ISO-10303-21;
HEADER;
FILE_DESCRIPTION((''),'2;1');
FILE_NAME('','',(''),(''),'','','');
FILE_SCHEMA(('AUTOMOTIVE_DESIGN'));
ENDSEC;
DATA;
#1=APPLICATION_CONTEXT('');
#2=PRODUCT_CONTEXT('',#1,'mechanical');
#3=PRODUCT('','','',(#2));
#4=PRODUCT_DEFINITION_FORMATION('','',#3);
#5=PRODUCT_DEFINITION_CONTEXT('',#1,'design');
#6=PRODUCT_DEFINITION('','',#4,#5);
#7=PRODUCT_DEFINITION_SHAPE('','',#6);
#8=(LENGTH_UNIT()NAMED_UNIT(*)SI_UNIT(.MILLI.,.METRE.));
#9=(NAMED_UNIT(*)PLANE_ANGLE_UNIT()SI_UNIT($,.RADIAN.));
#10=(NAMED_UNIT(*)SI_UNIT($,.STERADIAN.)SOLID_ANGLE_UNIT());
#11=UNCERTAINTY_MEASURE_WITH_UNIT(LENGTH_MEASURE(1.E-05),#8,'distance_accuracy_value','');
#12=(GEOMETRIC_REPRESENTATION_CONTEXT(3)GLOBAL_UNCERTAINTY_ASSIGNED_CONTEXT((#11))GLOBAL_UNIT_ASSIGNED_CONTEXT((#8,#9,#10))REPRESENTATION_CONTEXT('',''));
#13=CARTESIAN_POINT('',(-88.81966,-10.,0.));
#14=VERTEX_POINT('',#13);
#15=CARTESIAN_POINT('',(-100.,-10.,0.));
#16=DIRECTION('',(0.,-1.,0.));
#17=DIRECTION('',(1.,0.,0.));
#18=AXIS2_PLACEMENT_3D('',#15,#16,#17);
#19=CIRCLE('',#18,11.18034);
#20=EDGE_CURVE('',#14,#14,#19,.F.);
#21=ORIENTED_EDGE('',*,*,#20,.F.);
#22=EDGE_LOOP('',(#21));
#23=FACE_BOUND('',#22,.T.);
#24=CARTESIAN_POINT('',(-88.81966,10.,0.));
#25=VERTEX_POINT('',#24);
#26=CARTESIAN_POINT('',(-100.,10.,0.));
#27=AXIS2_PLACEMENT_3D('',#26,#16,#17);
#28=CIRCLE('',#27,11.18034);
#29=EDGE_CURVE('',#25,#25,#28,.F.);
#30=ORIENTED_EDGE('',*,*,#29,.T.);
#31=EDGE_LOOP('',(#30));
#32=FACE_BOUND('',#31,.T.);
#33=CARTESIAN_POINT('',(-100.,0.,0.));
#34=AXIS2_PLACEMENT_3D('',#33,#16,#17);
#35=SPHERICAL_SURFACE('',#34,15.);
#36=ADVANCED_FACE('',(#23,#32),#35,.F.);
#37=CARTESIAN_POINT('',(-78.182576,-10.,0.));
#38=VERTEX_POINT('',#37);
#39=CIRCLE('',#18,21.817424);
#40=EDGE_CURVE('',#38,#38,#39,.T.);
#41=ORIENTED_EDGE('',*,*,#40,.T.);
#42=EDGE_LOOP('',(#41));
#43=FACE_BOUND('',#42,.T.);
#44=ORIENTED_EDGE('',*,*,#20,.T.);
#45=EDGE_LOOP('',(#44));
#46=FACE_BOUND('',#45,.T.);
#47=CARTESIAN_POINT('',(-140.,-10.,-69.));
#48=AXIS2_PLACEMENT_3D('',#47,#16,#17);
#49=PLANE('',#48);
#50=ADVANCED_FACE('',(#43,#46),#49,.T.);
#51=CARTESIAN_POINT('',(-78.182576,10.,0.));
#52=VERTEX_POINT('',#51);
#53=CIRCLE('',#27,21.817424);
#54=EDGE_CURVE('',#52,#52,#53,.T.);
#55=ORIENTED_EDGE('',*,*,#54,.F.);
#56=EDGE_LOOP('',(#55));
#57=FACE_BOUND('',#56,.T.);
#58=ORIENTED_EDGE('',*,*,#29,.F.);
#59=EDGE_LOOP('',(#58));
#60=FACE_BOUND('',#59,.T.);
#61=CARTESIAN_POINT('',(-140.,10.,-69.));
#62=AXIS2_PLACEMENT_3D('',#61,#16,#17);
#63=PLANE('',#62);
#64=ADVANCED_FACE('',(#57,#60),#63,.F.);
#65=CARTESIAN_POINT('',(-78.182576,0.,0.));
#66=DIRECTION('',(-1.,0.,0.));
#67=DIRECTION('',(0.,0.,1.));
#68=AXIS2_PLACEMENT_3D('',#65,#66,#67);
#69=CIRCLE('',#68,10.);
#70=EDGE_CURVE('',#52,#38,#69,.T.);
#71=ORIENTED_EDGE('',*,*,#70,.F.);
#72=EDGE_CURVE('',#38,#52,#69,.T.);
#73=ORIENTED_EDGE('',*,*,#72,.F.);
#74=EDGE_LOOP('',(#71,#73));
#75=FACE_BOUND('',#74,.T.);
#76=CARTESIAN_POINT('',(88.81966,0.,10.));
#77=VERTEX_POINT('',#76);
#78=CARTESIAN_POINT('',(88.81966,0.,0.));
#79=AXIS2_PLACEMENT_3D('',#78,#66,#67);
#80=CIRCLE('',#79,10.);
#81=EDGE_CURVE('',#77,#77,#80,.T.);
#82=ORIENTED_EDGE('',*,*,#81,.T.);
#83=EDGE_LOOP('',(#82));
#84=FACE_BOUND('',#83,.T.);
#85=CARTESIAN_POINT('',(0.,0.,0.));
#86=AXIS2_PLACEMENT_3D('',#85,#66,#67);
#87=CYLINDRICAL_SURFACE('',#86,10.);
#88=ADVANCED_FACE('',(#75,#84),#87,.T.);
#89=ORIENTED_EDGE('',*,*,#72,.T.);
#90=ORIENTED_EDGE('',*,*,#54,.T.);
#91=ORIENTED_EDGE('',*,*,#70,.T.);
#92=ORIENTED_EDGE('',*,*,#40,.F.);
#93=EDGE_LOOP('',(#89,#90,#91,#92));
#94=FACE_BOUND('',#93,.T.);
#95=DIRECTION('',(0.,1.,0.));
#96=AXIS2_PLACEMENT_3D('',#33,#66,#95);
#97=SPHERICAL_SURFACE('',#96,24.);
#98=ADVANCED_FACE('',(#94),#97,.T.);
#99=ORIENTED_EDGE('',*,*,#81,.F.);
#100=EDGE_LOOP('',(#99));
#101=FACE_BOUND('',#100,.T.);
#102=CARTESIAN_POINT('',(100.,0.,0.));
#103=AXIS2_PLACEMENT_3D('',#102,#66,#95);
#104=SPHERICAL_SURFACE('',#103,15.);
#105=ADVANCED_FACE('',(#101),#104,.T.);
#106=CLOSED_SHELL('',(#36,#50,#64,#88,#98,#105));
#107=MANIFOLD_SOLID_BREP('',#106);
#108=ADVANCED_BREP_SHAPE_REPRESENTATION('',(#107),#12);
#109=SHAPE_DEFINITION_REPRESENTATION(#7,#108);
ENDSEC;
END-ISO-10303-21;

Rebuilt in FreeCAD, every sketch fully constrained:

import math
import FreeCAD as App
import Part
import Sketcher
from FreeCAD import Vector
Q = App.Units.Quantity

doc = App.newDocument("Part")
params = doc.addObject("Spreadsheet::Sheet", "Params")
for row, (alias, value) in enumerate([
    ("sketch1_radius", "15 mm"),
    ("sketch1_radius2", "24 mm"),
    ("sketch1_width", "200 mm"),
    ("revolution_angle", "360 deg"),
    ("sketch2_width", "80 mm"),
    ("sketch2_height", "20 mm"),
    ("pocket1_length", "138 mm"),
], start=1):
    params.set(f"A{row}", alias)
    params.set(f"B{row}", "=" + value)
    params.setAlias(f"B{row}", alias)

body = doc.addObject("PartDesign::Body", "Body")

sketch1 = body.newObject("Sketcher::SketchObject", "Sketch")
sketch1.AttachmentSupport = (doc.getObject("XY_Plane"), [""])
sketch1.MapMode = "FlatFace"
sketch1.addGeometry(Part.ArcOfCircle(Part.Circle(Vector(100, 0, 0), Vector(0, 0, 1), 15), math.radians(0), math.radians(138.189685)), False)
sketch1.addGeometry(Part.LineSegment(Vector(88.81966, 10, 0), Vector(-78.182576, 10, 0)), False)
sketch1.addGeometry(Part.ArcOfCircle(Part.Circle(Vector(-100, 0, 0), Vector(0, 0, 1), 24), math.radians(24.624318), math.radians(180)), False)
sketch1.addGeometry(Part.LineSegment(Vector(-124, 0, 0), Vector(-115, 0, 0)), False)
sketch1.addGeometry(Part.ArcOfCircle(Part.Circle(Vector(-100, 0, 0), Vector(0, 0, 1), 15), math.radians(0), math.radians(180)), False)
sketch1.addGeometry(Part.LineSegment(Vector(-85, 0, 0), Vector(115, 0, 0)), False)
sketch1.addConstraint(Sketcher.Constraint("Coincident", 0, 2, 1, 1))
sketch1.addConstraint(Sketcher.Constraint("Coincident", 1, 2, 2, 1))
sketch1.addConstraint(Sketcher.Constraint("Coincident", 2, 2, 3, 1))
sketch1.addConstraint(Sketcher.Constraint("Coincident", 3, 2, 4, 2))
sketch1.addConstraint(Sketcher.Constraint("Coincident", 4, 1, 5, 1))
sketch1.addConstraint(Sketcher.Constraint("Coincident", 5, 2, 0, 1))
sketch1.addConstraint(Sketcher.Constraint("Horizontal", 1))
sketch1.addConstraint(Sketcher.Constraint("Horizontal", 3))
sketch1.addConstraint(Sketcher.Constraint("Horizontal", 5))
sketch1.addConstraint(Sketcher.Constraint("Coincident", 4, 3, 2, 3))
sketch1.addConstraint(Sketcher.Constraint("Equal", 0, 4))
sketch1.addConstraint(Sketcher.Constraint("Symmetric", 0, 3, 2, 3, -1, 1))
sketch1.addConstraint(Sketcher.Constraint("PointOnObject", 0, 3, -1))
sketch1.addConstraint(Sketcher.Constraint("PointOnObject", 2, 2, -1))
sketch1.addConstraint(Sketcher.Constraint("PointOnObject", 4, 1, -1))
sketch1.addConstraint(Sketcher.Constraint("Radius", 0, Q("15 mm")))
sketch1.addConstraint(Sketcher.Constraint("Radius", 2, Q("24 mm")))
sketch1.addConstraint(Sketcher.Constraint("DistanceX", 5, 1, 5, 2, Q("200 mm")))
sketch1.addConstraint(Sketcher.Constraint("DistanceY", -1, 1, 0, 2, Q("10 mm")))
sketch1.setExpression("Constraints[15]", "Params.sketch1_radius")
sketch1.setExpression("Constraints[16]", "Params.sketch1_radius2")
sketch1.setExpression("Constraints[17]", "Params.sketch1_width")
revolution = body.newObject("PartDesign::Revolution", "Revolution")
revolution.Profile = sketch1
revolution.ReferenceAxis = (sketch1, ["H_Axis"])
revolution.setExpression("Angle", "Params.revolution_angle")

sketch2 = body.newObject("Sketcher::SketchObject", "Sketch001")
sketch2.AttachmentSupport = (doc.getObject("XY_Plane"), [""])
sketch2.MapMode = "FlatFace"
sketch2.addGeometry(Part.LineSegment(Vector(-140, 30, 0), Vector(-140, 10, 0)), False)
sketch2.addGeometry(Part.LineSegment(Vector(-140, 10, 0), Vector(-60, 10, 0)), False)
sketch2.addGeometry(Part.LineSegment(Vector(-60, 10, 0), Vector(-60, 30, 0)), False)
sketch2.addGeometry(Part.LineSegment(Vector(-60, 30, 0), Vector(-140, 30, 0)), False)
sketch2.addGeometry(Part.LineSegment(Vector(-140, -10, 0), Vector(-140, -30, 0)), False)
sketch2.addGeometry(Part.LineSegment(Vector(-140, -30, 0), Vector(-60, -30, 0)), False)
sketch2.addGeometry(Part.LineSegment(Vector(-60, -30, 0), Vector(-60, -10, 0)), False)
sketch2.addGeometry(Part.LineSegment(Vector(-60, -10, 0), Vector(-140, -10, 0)), False)
sketch2.addConstraint(Sketcher.Constraint("Coincident", 0, 2, 1, 1))
sketch2.addConstraint(Sketcher.Constraint("Coincident", 1, 2, 2, 1))
sketch2.addConstraint(Sketcher.Constraint("Coincident", 2, 2, 3, 1))
sketch2.addConstraint(Sketcher.Constraint("Coincident", 3, 2, 0, 1))
sketch2.addConstraint(Sketcher.Constraint("Coincident", 4, 2, 5, 1))
sketch2.addConstraint(Sketcher.Constraint("Coincident", 5, 2, 6, 1))
sketch2.addConstraint(Sketcher.Constraint("Coincident", 6, 2, 7, 1))
sketch2.addConstraint(Sketcher.Constraint("Coincident", 7, 2, 4, 1))
sketch2.addConstraint(Sketcher.Constraint("Vertical", 0))
sketch2.addConstraint(Sketcher.Constraint("Horizontal", 1))
sketch2.addConstraint(Sketcher.Constraint("Vertical", 2))
sketch2.addConstraint(Sketcher.Constraint("Horizontal", 3))
sketch2.addConstraint(Sketcher.Constraint("Vertical", 4))
sketch2.addConstraint(Sketcher.Constraint("Horizontal", 5))
sketch2.addConstraint(Sketcher.Constraint("Vertical", 6))
sketch2.addConstraint(Sketcher.Constraint("Horizontal", 7))
sketch2.addConstraint(Sketcher.Constraint("Symmetric", 3, 2, 4, 2, -1))
sketch2.addConstraint(Sketcher.Constraint("Symmetric", 1, 2, 6, 2, -1))
sketch2.addConstraint(Sketcher.Constraint("DistanceX", 1, 1, 1, 2, Q("80 mm")))
sketch2.addConstraint(Sketcher.Constraint("DistanceY", 0, 2, 0, 1, Q("20 mm")))
sketch2.addConstraint(Sketcher.Constraint("DistanceX", 0, 2, -1, 1, Q("140 mm")))
sketch2.addConstraint(Sketcher.Constraint("DistanceY", -1, 1, 0, 2, Q("10 mm")))
sketch2.setExpression("Constraints[18]", "Params.sketch2_width")
sketch2.setExpression("Constraints[19]", "Params.sketch2_height")
pocket1 = body.newObject("PartDesign::Pocket", "Pocket")
pocket1.Profile = sketch2
pocket1.setExpression("Length", "Params.pocket1_length")
pocket1.Midplane = True

doc.recompute()
